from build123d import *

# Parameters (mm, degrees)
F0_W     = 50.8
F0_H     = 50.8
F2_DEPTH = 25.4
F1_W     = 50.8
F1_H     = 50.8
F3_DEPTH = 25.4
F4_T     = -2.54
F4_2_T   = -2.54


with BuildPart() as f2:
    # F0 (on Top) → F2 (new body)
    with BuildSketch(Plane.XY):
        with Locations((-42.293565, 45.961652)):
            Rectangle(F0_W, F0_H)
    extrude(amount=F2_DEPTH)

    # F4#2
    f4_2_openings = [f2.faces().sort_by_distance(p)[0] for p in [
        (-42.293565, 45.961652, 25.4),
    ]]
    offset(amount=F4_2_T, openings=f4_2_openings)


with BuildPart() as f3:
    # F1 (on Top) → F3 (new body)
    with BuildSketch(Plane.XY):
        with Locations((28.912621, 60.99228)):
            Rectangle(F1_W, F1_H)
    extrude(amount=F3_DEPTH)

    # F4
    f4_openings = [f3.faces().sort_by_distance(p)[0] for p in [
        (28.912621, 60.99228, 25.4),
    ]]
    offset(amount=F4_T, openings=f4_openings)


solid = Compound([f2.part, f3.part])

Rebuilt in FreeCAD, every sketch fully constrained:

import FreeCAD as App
import Part
import Sketcher
Q = App.Units.Quantity


def faces_at(feature, points):
    """Names of the faces that lie closest to the given points."""
    faces = feature.Shape.Faces
    near = lambda p: min(range(len(faces)), key=lambda i: faces[i].distToShape(Part.Vertex(*p))[0])
    return sorted({f"Face{near(p) + 1}" for p in points})


def add_polygon(sketch, points):
    """Adds a closed chain of lines whose ends are joined by coincident constraints."""
    first, n = sketch.GeometryCount, len(points)
    for a, b in zip(points, points[1:] + points[:1]):
        sketch.addGeometry(Part.LineSegment(App.Vector(*a, 0), App.Vector(*b, 0)), False)
    for i in range(n):
        sketch.addConstraint(Sketcher.Constraint("Coincident", first + i, 2, first + (i + 1) % n, 1))

doc = App.newDocument("Part")
params = doc.addObject("Spreadsheet::Sheet", "Params")
for row, (alias, value) in enumerate([
    ("sketch1_width", "2 in"),
    ("pad1_length", "1 in"),
    ("thickness_wall", "0.1 in"),
    ("sketch2_width", "2 in"),
    ("pad2_length", "1 in"),
    ("thickness2_wall", "0.1 in"),
], start=1):
    params.set(f"A{row}", alias)
    params.set(f"B{row}", "=" + value)
    params.setAlias(f"B{row}", alias)

body = doc.addObject("PartDesign::Body", "Body")

sketch1 = body.newObject("Sketcher::SketchObject", "Sketch")
sketch1.AttachmentSupport = (doc.getObject("XY_Plane"), [""])
sketch1.MapMode = "FlatFace"
add_polygon(sketch1, [(-68, 71), (-68, 21), (-17, 21), (-17, 71)])
sketch1.addConstraint([
    Sketcher.Constraint("Vertical", 0),
    Sketcher.Constraint("Horizontal", 1),
    Sketcher.Constraint("Vertical", 2),
    Sketcher.Constraint("Horizontal", 3),
    Sketcher.Constraint("Equal", 3, 0),
    Sketcher.Constraint("DistanceX", 1, 1, 1, 2, Q("2 in")),
    Sketcher.Constraint("DistanceY", -1, 1, 0, 2, 20.561652),
    Sketcher.Constraint("DistanceX", 0, 2, -1, 1, 67.693565),
])
sketch1.setExpression("Constraints[9]", "Params.sketch1_width")
pad1 = body.newObject("PartDesign::Pad", "Pad")
pad1.Profile = sketch1
pad1.setExpression("Length", "Params.pad1_length")
doc.recompute()

thickness = body.newObject("PartDesign::Thickness", "Thickness")
thickness.Base = (pad1, faces_at(pad1, [(-42.294, 45.962, 25.4)]))
thickness.setExpression("Value", "Params.thickness_wall")
thickness.Reversed = True
thickness.Join = "Arc"
body2 = doc.addObject("PartDesign::Body", "Body001")

sketch2 = body2.newObject("Sketcher::SketchObject", "Sketch001")
sketch2.AttachmentSupport = (doc.getObject("XY_Plane001"), [""])
sketch2.MapMode = "FlatFace"
add_polygon(sketch2, [(4, 86), (4, 36), (54, 36), (54, 86)])
sketch2.addConstraint([
    Sketcher.Constraint("Vertical", 0),
    Sketcher.Constraint("Horizontal", 1),
    Sketcher.Constraint("Vertical", 2),
    Sketcher.Constraint("Horizontal", 3),
    Sketcher.Constraint("Equal", 3, 0),
    Sketcher.Constraint("DistanceX", 1, 1, 1, 2, Q("2 in")),
    Sketcher.Constraint("DistanceX", -1, 1, 0, 2, 3.512621),
    Sketcher.Constraint("DistanceY", -1, 1, 0, 2, 35.59228),
])
sketch2.setExpression("Constraints[9]", "Params.sketch2_width")
pad2 = body2.newObject("PartDesign::Pad", "Pad001")
pad2.Profile = sketch2
pad2.setExpression("Length", "Params.pad2_length")
doc.recompute()

thickness2 = body2.newObject("PartDesign::Thickness", "Thickness001")
thickness2.Base = (pad2, faces_at(pad2, [(28.913, 60.992, 25.4)]))
thickness2.setExpression("Value", "Params.thickness2_wall")
thickness2.Reversed = True
thickness2.Join = "Arc"

doc.recompute()
